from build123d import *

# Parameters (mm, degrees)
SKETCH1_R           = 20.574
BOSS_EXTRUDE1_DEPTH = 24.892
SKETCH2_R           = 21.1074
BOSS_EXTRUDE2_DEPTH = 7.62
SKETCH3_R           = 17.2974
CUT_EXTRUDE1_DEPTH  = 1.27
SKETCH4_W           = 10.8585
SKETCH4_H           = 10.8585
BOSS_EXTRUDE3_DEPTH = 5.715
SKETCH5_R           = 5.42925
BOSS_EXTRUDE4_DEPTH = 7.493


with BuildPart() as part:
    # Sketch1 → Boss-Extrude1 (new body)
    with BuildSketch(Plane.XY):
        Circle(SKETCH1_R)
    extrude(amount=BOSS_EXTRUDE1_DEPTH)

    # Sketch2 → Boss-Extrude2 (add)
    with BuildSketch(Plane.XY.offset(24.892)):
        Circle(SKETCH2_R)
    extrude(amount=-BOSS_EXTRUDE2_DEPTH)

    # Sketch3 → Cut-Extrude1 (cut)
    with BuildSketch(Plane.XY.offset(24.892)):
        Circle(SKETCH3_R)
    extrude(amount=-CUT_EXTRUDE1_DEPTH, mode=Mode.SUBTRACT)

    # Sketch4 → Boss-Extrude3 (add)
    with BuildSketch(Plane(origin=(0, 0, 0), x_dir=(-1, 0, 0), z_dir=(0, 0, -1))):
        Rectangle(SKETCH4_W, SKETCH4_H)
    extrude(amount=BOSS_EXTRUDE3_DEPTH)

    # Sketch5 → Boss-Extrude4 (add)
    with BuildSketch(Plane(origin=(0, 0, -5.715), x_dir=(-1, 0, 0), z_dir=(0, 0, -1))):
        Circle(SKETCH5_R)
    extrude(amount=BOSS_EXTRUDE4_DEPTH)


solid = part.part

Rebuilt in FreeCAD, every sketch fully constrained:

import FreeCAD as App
import Part
import Sketcher
Q = App.Units.Quantity

doc = App.newDocument("Part")
params = doc.addObject("Spreadsheet::Sheet", "Params")
for row, (alias, value) in enumerate([
    ("sketch1_diameter", "1.62 in"),
    ("pad1_length", "0.98 in"),
    ("sketch2_diameter", "1.662 in"),
    ("pad2_length", "0.3 in"),
    ("sketch3_diameter", "1.362 in"),
    ("pocket1_length", "0.05 in"),
    ("pad3_length", "0.225 in"),
    ("pad4_length", "0.295 in"),
], start=1):
    params.set(f"A{row}", alias)
    params.set(f"B{row}", "=" + value)
    params.setAlias(f"B{row}", alias)

body = doc.addObject("PartDesign::Body", "Body")

sketch1 = body.newObject("Sketcher::SketchObject", "Sketch")
sketch1.AttachmentSupport = (doc.getObject("XY_Plane"), [""])
sketch1.MapMode = "FlatFace"
sketch1.addGeometry(Part.Circle(App.Vector(0, 0, 0), App.Vector(0, 0, 1), 21), False)
sketch1.addConstraint(Sketcher.Constraint("Coincident", 0, 3, -1, 1))
sketch1.addConstraint(Sketcher.Constraint("Diameter", 0, Q("1.62 in")))
sketch1.setExpression("Constraints[1]", "Params.sketch1_diameter")
pad1 = body.newObject("PartDesign::Pad", "Pad")
pad1.Profile = sketch1
pad1.setExpression("Length", "Params.pad1_length")

sketch2 = body.newObject("Sketcher::SketchObject", "Sketch001")
sketch2.AttachmentSupport = (doc.getObject("XY_Plane"), [""])
sketch2.MapMode = "FlatFace"
sketch2.AttachmentOffset = App.Placement(App.Vector(0, 0, 0.98 * 25.4), App.Rotation())
sketch2.addGeometry(Part.Circle(App.Vector(0, 0, 0), App.Vector(0, 0, 1), 21), False)
sketch2.addConstraint(Sketcher.Constraint("Coincident", 0, 3, -1, 1))
sketch2.addConstraint(Sketcher.Constraint("Diameter", 0, Q("1.662 in")))
sketch2.setExpression("Constraints[1]", "Params.sketch2_diameter")
pad2 = body.newObject("PartDesign::Pad", "Pad001")
pad2.Profile = sketch2
pad2.setExpression("Length", "Params.pad2_length")
pad2.Reversed = True

sketch3 = body.newObject("Sketcher::SketchObject", "Sketch002")
sketch3.AttachmentSupport = (doc.getObject("XY_Plane"), [""])
sketch3.MapMode = "FlatFace"
sketch3.AttachmentOffset = App.Placement(App.Vector(0, 0, 0.98 * 25.4), App.Rotation())
sketch3.addGeometry(Part.Circle(App.Vector(0, 0, 0), App.Vector(0, 0, 1), 17), False)
sketch3.addConstraint(Sketcher.Constraint("Coincident", 0, 3, -1, 1))
sketch3.addConstraint(Sketcher.Constraint("Diameter", 0, Q("1.362 in")))
sketch3.setExpression("Constraints[1]", "Params.sketch3_diameter")
pocket1 = body.newObject("PartDesign::Pocket", "Pocket")
pocket1.Profile = sketch3
pocket1.setExpression("Length", "Params.pocket1_length")

sketch4 = body.newObject("Sketcher::SketchObject", "Sketch003")
sketch4.AttachmentSupport = (doc.getObject("XY_Plane"), [""])
sketch4.MapMode = "FlatFace"
sketch4.addGeometry(Part.LineSegment(App.Vector(5, 5, 0), App.Vector(5, -5, 0)), False)
sketch4.addGeometry(Part.LineSegment(App.Vector(5, -5, 0), App.Vector(-5, -5, 0)), False)
sketch4.addGeometry(Part.LineSegment(App.Vector(-5, -5, 0), App.Vector(-5, 5, 0)), False)
sketch4.addGeometry(Part.LineSegment(App.Vector(-5, 5, 0), App.Vector(5, 5, 0)), False)
sketch4.addConstraint(Sketcher.Constraint("Coincident", 0, 2, 1, 1))
sketch4.addConstraint(Sketcher.Constraint("Coincident", 1, 2, 2, 1))
sketch4.addConstraint(Sketcher.Constraint("Coincident", 2, 2, 3, 1))
sketch4.addConstraint(Sketcher.Constraint("Coincident", 3, 2, 0, 1))
sketch4.addConstraint(Sketcher.Constraint("Vertical", 0))
sketch4.addConstraint(Sketcher.Constraint("Horizontal", 1))
sketch4.addConstraint(Sketcher.Constraint("Vertical", 2))
sketch4.addConstraint(Sketcher.Constraint("Horizontal", 3))
sketch4.addConstraint(Sketcher.Constraint("Symmetric", 0, 2, 2, 2, -1, 1))
sketch4.addConstraint(Sketcher.Constraint("Equal", 3, 0))
sketch4.addConstraint(Sketcher.Constraint("DistanceX", 1, 2, 1, 1, Q("0.4275 in")))
pad3 = body.newObject("PartDesign::Pad", "Pad002")
pad3.Profile = sketch4
pad3.setExpression("Length", "Params.pad3_length")
pad3.Reversed = True

sketch5 = body.newObject("Sketcher::SketchObject", "Sketch004")
sketch5.AttachmentSupport = (doc.getObject("XY_Plane"), [""])
sketch5.MapMode = "FlatFace"
sketch5.AttachmentOffset = App.Placement(App.Vector(0, 0, -0.225 * 25.4), App.Rotation())
sketch5.addGeometry(Part.Circle(App.Vector(0, 0, 0), App.Vector(0, 0, 1), 5), False)
sketch5.addConstraint(Sketcher.Constraint("Coincident", 0, 3, -1, 1))
sketch5.addConstraint(Sketcher.Constraint("Diameter", 0, Q("0.4275 in")))
pad4 = body.newObject("PartDesign::Pad", "Pad003")
pad4.Profile = sketch5
pad4.setExpression("Length", "Params.pad4_length")
pad4.Reversed = True

doc.recompute()
